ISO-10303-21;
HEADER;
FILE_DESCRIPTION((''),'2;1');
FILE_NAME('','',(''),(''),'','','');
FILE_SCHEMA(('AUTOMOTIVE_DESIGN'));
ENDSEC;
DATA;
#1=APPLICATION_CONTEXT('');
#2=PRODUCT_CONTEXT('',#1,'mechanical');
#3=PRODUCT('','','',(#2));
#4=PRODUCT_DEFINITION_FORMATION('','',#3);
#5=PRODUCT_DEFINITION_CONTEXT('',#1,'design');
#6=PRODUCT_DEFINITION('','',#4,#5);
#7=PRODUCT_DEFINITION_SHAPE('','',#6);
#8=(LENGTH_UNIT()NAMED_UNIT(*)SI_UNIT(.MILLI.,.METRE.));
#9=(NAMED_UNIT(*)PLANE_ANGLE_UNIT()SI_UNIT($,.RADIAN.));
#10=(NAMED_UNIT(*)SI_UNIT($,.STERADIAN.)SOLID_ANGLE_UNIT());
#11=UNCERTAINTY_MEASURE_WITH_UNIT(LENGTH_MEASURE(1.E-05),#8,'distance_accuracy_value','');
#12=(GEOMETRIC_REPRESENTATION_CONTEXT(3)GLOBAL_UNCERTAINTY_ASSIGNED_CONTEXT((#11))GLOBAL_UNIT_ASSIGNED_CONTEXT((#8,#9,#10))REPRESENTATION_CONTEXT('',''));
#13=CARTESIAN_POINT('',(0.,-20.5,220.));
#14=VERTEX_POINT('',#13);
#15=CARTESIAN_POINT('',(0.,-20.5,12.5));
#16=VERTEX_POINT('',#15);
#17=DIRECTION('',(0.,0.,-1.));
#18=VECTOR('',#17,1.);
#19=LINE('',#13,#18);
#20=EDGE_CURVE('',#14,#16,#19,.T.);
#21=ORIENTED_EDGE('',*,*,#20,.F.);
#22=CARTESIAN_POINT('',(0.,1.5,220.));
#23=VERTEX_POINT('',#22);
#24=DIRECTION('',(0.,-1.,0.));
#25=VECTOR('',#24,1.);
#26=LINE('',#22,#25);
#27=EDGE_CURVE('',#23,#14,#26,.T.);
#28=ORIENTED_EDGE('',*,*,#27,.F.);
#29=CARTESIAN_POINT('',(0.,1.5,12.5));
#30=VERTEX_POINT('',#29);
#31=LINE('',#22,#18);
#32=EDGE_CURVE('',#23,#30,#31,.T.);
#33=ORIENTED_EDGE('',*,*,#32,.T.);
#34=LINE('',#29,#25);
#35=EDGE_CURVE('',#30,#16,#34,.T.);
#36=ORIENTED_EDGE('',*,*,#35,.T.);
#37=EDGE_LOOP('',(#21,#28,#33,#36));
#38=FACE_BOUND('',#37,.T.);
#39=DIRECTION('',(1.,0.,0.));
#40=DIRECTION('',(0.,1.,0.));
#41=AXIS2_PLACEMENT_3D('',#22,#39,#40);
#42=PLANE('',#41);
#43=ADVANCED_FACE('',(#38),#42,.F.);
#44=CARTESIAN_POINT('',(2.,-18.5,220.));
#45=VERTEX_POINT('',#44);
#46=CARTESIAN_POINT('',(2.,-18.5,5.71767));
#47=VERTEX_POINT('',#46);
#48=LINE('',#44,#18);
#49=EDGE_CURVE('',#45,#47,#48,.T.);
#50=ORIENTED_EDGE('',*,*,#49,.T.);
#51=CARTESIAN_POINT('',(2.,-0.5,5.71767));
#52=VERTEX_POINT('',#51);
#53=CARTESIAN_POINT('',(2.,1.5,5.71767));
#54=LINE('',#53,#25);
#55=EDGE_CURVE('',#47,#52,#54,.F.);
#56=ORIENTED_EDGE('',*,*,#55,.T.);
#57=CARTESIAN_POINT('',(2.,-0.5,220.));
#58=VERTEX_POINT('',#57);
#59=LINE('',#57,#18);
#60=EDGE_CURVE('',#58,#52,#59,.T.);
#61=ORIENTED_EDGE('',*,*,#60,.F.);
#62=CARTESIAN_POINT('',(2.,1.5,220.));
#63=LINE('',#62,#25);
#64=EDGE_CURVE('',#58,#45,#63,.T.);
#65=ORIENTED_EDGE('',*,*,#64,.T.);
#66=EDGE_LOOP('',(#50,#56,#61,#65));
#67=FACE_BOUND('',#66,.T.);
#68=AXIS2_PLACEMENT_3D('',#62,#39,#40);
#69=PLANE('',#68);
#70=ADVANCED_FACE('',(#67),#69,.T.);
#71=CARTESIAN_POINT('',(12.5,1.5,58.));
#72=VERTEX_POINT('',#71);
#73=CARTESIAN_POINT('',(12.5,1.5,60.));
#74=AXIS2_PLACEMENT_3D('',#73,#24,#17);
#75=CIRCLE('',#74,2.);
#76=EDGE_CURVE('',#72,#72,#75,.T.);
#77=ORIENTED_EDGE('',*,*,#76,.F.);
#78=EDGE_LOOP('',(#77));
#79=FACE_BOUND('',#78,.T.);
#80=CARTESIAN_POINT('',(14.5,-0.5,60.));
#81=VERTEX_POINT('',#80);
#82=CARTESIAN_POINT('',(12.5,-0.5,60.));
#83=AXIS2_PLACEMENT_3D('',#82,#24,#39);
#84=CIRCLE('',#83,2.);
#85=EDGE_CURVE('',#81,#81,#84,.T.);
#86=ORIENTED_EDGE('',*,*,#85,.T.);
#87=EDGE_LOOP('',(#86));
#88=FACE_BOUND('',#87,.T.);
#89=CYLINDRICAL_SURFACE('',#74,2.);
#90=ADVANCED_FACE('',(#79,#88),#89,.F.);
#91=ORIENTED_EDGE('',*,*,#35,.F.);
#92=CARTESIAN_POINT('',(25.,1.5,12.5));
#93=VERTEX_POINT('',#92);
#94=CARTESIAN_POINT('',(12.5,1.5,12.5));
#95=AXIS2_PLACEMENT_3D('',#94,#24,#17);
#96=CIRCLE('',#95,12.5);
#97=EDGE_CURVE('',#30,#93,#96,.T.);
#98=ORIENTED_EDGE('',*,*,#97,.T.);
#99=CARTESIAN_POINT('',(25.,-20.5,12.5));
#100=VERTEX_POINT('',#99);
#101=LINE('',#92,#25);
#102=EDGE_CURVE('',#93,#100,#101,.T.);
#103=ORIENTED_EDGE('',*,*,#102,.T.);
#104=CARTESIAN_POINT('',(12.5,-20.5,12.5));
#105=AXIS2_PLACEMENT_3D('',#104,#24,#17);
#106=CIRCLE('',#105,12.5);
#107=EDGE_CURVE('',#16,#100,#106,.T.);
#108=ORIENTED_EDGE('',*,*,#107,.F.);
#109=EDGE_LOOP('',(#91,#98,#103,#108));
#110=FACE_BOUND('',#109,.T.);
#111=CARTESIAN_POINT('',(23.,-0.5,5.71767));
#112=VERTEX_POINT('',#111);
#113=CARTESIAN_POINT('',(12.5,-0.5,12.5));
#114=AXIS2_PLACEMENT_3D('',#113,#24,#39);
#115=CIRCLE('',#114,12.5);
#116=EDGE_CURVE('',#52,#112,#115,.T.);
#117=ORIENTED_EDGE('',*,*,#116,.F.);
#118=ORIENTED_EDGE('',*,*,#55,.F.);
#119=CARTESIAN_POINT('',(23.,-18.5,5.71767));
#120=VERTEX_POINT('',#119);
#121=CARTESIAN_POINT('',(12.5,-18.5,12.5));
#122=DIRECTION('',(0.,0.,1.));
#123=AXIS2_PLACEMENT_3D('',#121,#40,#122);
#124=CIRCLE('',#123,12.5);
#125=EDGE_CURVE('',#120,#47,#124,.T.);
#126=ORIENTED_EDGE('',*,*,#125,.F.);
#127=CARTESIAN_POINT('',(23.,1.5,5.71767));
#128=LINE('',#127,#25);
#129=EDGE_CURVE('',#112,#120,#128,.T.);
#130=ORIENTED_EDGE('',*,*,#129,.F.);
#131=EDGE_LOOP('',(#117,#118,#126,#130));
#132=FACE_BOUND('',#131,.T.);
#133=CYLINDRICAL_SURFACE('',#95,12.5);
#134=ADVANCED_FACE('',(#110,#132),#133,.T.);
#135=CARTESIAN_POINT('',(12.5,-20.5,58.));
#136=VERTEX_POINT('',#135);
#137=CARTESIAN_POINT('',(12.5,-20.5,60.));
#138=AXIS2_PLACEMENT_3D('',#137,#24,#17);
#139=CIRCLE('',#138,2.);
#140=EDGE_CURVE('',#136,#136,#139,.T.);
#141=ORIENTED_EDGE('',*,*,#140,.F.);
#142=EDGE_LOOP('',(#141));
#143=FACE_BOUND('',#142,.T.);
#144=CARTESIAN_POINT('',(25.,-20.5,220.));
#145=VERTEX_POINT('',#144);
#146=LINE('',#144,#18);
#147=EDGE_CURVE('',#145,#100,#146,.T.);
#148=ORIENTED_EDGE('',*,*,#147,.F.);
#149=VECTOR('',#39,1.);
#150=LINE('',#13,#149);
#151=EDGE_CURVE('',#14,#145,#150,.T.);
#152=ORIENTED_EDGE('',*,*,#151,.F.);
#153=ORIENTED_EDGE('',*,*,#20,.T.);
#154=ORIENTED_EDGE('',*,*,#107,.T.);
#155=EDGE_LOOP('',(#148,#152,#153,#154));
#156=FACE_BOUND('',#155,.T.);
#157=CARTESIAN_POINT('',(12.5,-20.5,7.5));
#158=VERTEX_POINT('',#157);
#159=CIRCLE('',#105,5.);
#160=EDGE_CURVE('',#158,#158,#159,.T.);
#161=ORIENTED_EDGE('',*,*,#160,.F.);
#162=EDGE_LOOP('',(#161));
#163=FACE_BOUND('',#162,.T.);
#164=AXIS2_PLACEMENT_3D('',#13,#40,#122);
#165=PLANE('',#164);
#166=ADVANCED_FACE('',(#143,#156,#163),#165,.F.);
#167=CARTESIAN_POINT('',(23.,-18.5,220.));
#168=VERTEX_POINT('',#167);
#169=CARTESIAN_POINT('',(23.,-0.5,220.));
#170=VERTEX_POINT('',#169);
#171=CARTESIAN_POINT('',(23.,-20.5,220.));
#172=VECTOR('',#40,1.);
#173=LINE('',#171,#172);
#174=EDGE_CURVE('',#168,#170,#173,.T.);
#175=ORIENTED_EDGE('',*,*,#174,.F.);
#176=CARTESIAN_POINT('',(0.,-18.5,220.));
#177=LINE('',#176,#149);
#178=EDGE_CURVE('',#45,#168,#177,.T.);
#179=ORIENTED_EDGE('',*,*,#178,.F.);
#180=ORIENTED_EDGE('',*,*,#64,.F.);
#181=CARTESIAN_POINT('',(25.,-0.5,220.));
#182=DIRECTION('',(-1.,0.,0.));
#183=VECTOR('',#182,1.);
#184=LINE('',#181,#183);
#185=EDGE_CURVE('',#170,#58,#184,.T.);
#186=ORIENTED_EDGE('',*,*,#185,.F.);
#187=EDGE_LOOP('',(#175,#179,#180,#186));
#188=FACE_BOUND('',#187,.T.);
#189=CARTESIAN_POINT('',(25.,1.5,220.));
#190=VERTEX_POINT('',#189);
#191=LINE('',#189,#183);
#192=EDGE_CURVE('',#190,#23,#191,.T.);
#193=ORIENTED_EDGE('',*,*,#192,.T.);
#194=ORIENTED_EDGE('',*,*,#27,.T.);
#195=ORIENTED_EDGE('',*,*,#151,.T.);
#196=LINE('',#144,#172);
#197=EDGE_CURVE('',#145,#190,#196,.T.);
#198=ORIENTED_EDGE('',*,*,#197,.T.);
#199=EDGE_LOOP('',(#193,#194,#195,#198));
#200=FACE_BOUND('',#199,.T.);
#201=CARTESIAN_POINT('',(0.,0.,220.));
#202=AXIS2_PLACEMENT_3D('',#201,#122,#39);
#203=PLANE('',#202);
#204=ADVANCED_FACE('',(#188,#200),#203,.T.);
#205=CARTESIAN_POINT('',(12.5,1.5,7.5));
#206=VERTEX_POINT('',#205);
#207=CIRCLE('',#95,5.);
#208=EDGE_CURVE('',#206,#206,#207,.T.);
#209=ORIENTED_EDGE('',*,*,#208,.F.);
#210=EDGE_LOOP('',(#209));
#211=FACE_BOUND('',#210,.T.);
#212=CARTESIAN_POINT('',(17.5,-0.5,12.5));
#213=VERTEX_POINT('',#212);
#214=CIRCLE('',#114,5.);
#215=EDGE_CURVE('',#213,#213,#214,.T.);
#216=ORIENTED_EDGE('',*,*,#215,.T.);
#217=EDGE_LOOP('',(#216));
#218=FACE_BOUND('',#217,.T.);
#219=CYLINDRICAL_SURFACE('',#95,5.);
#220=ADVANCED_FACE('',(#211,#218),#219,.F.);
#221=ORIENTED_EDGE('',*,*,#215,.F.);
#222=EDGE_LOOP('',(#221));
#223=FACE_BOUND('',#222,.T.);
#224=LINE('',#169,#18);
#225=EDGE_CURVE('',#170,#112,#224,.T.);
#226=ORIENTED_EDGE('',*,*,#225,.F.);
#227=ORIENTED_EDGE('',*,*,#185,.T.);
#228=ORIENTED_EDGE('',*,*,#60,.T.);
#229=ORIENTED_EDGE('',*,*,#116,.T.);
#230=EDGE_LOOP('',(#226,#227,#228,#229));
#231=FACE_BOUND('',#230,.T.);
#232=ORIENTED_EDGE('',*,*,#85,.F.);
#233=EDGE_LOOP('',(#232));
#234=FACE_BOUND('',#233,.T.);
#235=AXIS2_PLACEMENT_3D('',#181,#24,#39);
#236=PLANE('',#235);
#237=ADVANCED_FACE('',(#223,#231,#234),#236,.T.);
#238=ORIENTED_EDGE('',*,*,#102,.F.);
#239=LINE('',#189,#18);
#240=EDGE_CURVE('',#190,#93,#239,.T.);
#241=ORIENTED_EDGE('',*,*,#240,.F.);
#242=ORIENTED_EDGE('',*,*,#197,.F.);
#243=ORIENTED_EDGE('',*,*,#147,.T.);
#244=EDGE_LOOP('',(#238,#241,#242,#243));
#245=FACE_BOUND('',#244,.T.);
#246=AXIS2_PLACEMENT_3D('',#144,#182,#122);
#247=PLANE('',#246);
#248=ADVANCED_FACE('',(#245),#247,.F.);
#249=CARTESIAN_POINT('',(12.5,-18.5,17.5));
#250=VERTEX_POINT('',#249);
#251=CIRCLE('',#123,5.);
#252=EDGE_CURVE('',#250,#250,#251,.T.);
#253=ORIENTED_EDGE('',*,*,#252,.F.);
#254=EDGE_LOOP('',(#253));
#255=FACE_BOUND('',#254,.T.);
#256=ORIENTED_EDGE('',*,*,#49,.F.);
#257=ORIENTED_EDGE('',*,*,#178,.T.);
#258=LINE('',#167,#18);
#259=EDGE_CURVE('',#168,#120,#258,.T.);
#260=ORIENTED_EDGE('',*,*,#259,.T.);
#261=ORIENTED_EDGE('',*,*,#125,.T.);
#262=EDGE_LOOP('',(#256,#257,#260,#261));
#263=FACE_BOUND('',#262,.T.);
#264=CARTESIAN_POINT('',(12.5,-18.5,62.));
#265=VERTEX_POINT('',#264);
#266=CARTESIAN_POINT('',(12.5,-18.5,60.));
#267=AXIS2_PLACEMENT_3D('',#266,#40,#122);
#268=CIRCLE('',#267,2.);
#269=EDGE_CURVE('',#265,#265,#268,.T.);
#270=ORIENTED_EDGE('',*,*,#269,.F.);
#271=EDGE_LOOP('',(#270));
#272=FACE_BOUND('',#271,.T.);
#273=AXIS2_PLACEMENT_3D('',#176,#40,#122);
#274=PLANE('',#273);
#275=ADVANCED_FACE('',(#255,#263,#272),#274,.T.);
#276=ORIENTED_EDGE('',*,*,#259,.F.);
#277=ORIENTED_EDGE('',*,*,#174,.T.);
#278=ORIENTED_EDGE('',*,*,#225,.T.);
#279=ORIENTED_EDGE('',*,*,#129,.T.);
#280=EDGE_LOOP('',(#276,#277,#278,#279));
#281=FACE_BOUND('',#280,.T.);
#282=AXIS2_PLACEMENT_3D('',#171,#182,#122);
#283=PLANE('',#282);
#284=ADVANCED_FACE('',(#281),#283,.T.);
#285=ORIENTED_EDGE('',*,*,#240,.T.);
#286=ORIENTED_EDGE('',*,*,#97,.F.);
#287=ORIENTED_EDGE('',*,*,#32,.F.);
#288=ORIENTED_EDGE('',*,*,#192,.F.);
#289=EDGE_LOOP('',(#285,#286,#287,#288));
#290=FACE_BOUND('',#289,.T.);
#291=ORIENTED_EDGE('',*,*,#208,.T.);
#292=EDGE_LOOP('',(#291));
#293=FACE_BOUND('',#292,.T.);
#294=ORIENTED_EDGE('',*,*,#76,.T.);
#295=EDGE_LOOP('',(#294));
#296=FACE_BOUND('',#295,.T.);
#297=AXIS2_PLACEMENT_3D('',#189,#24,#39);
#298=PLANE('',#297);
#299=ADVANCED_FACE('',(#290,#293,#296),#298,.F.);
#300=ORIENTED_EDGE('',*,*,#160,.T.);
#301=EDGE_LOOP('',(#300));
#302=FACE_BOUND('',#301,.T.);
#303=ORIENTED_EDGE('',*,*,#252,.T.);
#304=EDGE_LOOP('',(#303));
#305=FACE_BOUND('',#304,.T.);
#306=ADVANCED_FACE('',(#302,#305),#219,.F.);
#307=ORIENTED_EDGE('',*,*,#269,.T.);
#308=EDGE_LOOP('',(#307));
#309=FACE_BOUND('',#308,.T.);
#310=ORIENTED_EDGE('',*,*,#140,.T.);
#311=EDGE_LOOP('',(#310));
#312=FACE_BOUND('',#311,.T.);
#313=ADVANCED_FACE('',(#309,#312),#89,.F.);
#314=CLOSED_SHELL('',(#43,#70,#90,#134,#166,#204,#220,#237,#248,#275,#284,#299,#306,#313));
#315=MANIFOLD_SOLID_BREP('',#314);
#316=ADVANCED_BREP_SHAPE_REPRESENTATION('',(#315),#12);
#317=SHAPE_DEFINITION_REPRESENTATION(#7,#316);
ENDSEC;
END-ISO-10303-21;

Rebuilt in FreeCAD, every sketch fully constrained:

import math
import FreeCAD as App
import Part
import Sketcher
from FreeCAD import Vector


def add_polygon(sketch, points):
    """Adds a closed chain of lines whose ends are joined by coincident constraints."""
    first, n = sketch.GeometryCount, len(points)
    for a, b in zip(points, points[1:] + points[:1]):
        sketch.addGeometry(Part.LineSegment(App.Vector(*a, 0), App.Vector(*b, 0)), False)
    for i in range(n):
        sketch.addConstraint(Sketcher.Constraint("Coincident", first + i, 2, first + (i + 1) % n, 1))

doc = App.newDocument("Part")
body = doc.addObject("PartDesign::Body", "Body")

# Sketch on XY plane
sketch1 = body.newObject("Sketcher::SketchObject", "Sketch")
sketch1.AttachmentSupport = (doc.getObject("XY_Plane"), [""])
sketch1.MapMode = "FlatFace"
add_polygon(sketch1, [(0, 2), (0, -20), (25, -20), (25, 2)])  # lines 0-3
add_polygon(sketch1, [(23, -18), (2, -18), (2, 0), (23, 0)])  # lines 4-7
sketch1.addConstraint(Sketcher.Constraint("Vertical", 0))
sketch1.addConstraint(Sketcher.Constraint("Horizontal", 1))
sketch1.addConstraint(Sketcher.Constraint("Vertical", 2))
sketch1.addConstraint(Sketcher.Constraint("Horizontal", 3))
sketch1.addConstraint(Sketcher.Constraint("Horizontal", 4))
sketch1.addConstraint(Sketcher.Constraint("Vertical", 5))
sketch1.addConstraint(Sketcher.Constraint("Horizontal", 6))
sketch1.addConstraint(Sketcher.Constraint("Vertical", 7))
sketch1.addConstraint(Sketcher.Constraint("PointOnObject", 0, 2, -2))
sketch1.addConstraint(Sketcher.Constraint("DistanceX", 1, 1, 1, 2, 25.0))
sketch1.addConstraint(Sketcher.Constraint("DistanceX", 4, 2, 4, 1, 21.0))
sketch1.addConstraint(Sketcher.Constraint("DistanceY", 0, 2, 0, 1, 22.0))
sketch1.addConstraint(Sketcher.Constraint("DistanceY", 5, 1, 5, 2, 18.0))
sketch1.addConstraint(Sketcher.Constraint("DistanceX", -1, 1, 4, 2, 2.0))
sketch1.addConstraint(Sketcher.Constraint("DistanceY", 0, 2, 4, 2, 2.0))
sketch1.addConstraint(Sketcher.Constraint("DistanceY", 0, 2, -1, 1, 20.5))
pad1 = body.newObject("PartDesign::Pad", "Pad")
pad1.Profile = sketch1
pad1.Length = 220

# Sketch on XZ plane
sketch2 = body.newObject("Sketcher::SketchObject", "Sketch001")
sketch2.AttachmentSupport = (doc.getObject("XZ_Plane"), [""])
sketch2.MapMode = "FlatFace"
sketch2.AttachmentOffset = App.Placement(Vector(0, 0, 20.5), App.Rotation())
sketch2.addGeometry(Part.ArcOfCircle(Part.Circle(Vector(12, 12, 0), Vector(0, 0, 1), 12), math.radians(180), math.radians(270)), False)
sketch2.addGeometry(Part.LineSegment(Vector(0, 12, 0), Vector(0, 0, 0)), False)
sketch2.addGeometry(Part.LineSegment(Vector(0, 0, 0), Vector(12, 0, 0)), False)
sketch2.addGeometry(Part.ArcOfCircle(Part.Circle(Vector(13, 12, 0), Vector(0, 0, 1), 12), math.radians(-90), math.radians(0)), False)
sketch2.addGeometry(Part.LineSegment(Vector(12, 0, 0), Vector(25, 0, 0)), False)
sketch2.addGeometry(Part.LineSegment(Vector(25, 0, 0), Vector(25, 12, 0)), False)
sketch2.addConstraint(Sketcher.Constraint("Tangent", 0, 1, 1, 1))
sketch2.addConstraint(Sketcher.Constraint("Coincident", 1, 2, 2, 1))
sketch2.addConstraint(Sketcher.Constraint("Tangent", 2, 2, 0, 2))
sketch2.addConstraint(Sketcher.Constraint("Tangent", 3, 1, 4, 1))
sketch2.addConstraint(Sketcher.Constraint("Coincident", 4, 2, 5, 1))
sketch2.addConstraint(Sketcher.Constraint("Tangent", 5, 2, 3, 2))
sketch2.addConstraint(Sketcher.Constraint("Vertical", 1))
sketch2.addConstraint(Sketcher.Constraint("Horizontal", 2))
sketch2.addConstraint(Sketcher.Constraint("Horizontal", 4))
sketch2.addConstraint(Sketcher.Constraint("Vertical", 5))
sketch2.addConstraint(Sketcher.Constraint("Coincident", 1, 2, -1, 1))
sketch2.addConstraint(Sketcher.Constraint("Coincident", 3, 3, 0, 3))
sketch2.addConstraint(Sketcher.Constraint("Equal", 0, 3))
sketch2.addConstraint(Sketcher.Constraint("Radius", 0, 12.5))
pocket1 = body.newObject("PartDesign::Pocket", "Pocket")
pocket1.Profile = sketch2
pocket1.Type = "ThroughAll"

# Sketch on XZ plane
sketch3 = body.newObject("Sketcher::SketchObject", "Sketch002")
sketch3.AttachmentSupport = (doc.getObject("XZ_Plane"), [""])
sketch3.MapMode = "FlatFace"
sketch3.AttachmentOffset = App.Placement(Vector(0, 0, 20.5), App.Rotation())
sketch3.addGeometry(Part.Circle(Vector(12, 12, 0), Vector(0, 0, 1), 5), False)
sketch3.addConstraint(Sketcher.Constraint("Diameter", 0, 10.0))
sketch3.addConstraint(Sketcher.Constraint("DistanceX", -1, 1, 0, 3, 12.5))
sketch3.addConstraint(Sketcher.Constraint("DistanceY", -1, 1, 0, 3, 12.5))
pocket2 = body.newObject("PartDesign::Pocket", "Pocket001")
pocket2.Profile = sketch3
pocket2.Type = "ThroughAll"

# Sketch on XZ plane
sketch4 = body.newObject("Sketcher::SketchObject", "Sketch003")
sketch4.AttachmentSupport = (doc.getObject("XZ_Plane"), [""])
sketch4.MapMode = "FlatFace"
sketch4.AttachmentOffset = App.Placement(Vector(0, 0, 20.5), App.Rotation())
sketch4.addGeometry(Part.Circle(Vector(12.5, 60, 0), Vector(0, 0, 1), 2), False)
sketch4.addConstraint(Sketcher.Constraint("Diameter", 0, 4.0))
sketch4.addConstraint(Sketcher.Constraint("DistanceY", -1, 1, 0, 3, 60.0))
sketch4.addConstraint(Sketcher.Constraint("DistanceX", -1, 1, 0, 3, 12.5))
pocket3 = body.newObject("PartDesign::Pocket", "Pocket002")
pocket3.Profile = sketch4
pocket3.Type = "ThroughAll"

doc.recompute()
